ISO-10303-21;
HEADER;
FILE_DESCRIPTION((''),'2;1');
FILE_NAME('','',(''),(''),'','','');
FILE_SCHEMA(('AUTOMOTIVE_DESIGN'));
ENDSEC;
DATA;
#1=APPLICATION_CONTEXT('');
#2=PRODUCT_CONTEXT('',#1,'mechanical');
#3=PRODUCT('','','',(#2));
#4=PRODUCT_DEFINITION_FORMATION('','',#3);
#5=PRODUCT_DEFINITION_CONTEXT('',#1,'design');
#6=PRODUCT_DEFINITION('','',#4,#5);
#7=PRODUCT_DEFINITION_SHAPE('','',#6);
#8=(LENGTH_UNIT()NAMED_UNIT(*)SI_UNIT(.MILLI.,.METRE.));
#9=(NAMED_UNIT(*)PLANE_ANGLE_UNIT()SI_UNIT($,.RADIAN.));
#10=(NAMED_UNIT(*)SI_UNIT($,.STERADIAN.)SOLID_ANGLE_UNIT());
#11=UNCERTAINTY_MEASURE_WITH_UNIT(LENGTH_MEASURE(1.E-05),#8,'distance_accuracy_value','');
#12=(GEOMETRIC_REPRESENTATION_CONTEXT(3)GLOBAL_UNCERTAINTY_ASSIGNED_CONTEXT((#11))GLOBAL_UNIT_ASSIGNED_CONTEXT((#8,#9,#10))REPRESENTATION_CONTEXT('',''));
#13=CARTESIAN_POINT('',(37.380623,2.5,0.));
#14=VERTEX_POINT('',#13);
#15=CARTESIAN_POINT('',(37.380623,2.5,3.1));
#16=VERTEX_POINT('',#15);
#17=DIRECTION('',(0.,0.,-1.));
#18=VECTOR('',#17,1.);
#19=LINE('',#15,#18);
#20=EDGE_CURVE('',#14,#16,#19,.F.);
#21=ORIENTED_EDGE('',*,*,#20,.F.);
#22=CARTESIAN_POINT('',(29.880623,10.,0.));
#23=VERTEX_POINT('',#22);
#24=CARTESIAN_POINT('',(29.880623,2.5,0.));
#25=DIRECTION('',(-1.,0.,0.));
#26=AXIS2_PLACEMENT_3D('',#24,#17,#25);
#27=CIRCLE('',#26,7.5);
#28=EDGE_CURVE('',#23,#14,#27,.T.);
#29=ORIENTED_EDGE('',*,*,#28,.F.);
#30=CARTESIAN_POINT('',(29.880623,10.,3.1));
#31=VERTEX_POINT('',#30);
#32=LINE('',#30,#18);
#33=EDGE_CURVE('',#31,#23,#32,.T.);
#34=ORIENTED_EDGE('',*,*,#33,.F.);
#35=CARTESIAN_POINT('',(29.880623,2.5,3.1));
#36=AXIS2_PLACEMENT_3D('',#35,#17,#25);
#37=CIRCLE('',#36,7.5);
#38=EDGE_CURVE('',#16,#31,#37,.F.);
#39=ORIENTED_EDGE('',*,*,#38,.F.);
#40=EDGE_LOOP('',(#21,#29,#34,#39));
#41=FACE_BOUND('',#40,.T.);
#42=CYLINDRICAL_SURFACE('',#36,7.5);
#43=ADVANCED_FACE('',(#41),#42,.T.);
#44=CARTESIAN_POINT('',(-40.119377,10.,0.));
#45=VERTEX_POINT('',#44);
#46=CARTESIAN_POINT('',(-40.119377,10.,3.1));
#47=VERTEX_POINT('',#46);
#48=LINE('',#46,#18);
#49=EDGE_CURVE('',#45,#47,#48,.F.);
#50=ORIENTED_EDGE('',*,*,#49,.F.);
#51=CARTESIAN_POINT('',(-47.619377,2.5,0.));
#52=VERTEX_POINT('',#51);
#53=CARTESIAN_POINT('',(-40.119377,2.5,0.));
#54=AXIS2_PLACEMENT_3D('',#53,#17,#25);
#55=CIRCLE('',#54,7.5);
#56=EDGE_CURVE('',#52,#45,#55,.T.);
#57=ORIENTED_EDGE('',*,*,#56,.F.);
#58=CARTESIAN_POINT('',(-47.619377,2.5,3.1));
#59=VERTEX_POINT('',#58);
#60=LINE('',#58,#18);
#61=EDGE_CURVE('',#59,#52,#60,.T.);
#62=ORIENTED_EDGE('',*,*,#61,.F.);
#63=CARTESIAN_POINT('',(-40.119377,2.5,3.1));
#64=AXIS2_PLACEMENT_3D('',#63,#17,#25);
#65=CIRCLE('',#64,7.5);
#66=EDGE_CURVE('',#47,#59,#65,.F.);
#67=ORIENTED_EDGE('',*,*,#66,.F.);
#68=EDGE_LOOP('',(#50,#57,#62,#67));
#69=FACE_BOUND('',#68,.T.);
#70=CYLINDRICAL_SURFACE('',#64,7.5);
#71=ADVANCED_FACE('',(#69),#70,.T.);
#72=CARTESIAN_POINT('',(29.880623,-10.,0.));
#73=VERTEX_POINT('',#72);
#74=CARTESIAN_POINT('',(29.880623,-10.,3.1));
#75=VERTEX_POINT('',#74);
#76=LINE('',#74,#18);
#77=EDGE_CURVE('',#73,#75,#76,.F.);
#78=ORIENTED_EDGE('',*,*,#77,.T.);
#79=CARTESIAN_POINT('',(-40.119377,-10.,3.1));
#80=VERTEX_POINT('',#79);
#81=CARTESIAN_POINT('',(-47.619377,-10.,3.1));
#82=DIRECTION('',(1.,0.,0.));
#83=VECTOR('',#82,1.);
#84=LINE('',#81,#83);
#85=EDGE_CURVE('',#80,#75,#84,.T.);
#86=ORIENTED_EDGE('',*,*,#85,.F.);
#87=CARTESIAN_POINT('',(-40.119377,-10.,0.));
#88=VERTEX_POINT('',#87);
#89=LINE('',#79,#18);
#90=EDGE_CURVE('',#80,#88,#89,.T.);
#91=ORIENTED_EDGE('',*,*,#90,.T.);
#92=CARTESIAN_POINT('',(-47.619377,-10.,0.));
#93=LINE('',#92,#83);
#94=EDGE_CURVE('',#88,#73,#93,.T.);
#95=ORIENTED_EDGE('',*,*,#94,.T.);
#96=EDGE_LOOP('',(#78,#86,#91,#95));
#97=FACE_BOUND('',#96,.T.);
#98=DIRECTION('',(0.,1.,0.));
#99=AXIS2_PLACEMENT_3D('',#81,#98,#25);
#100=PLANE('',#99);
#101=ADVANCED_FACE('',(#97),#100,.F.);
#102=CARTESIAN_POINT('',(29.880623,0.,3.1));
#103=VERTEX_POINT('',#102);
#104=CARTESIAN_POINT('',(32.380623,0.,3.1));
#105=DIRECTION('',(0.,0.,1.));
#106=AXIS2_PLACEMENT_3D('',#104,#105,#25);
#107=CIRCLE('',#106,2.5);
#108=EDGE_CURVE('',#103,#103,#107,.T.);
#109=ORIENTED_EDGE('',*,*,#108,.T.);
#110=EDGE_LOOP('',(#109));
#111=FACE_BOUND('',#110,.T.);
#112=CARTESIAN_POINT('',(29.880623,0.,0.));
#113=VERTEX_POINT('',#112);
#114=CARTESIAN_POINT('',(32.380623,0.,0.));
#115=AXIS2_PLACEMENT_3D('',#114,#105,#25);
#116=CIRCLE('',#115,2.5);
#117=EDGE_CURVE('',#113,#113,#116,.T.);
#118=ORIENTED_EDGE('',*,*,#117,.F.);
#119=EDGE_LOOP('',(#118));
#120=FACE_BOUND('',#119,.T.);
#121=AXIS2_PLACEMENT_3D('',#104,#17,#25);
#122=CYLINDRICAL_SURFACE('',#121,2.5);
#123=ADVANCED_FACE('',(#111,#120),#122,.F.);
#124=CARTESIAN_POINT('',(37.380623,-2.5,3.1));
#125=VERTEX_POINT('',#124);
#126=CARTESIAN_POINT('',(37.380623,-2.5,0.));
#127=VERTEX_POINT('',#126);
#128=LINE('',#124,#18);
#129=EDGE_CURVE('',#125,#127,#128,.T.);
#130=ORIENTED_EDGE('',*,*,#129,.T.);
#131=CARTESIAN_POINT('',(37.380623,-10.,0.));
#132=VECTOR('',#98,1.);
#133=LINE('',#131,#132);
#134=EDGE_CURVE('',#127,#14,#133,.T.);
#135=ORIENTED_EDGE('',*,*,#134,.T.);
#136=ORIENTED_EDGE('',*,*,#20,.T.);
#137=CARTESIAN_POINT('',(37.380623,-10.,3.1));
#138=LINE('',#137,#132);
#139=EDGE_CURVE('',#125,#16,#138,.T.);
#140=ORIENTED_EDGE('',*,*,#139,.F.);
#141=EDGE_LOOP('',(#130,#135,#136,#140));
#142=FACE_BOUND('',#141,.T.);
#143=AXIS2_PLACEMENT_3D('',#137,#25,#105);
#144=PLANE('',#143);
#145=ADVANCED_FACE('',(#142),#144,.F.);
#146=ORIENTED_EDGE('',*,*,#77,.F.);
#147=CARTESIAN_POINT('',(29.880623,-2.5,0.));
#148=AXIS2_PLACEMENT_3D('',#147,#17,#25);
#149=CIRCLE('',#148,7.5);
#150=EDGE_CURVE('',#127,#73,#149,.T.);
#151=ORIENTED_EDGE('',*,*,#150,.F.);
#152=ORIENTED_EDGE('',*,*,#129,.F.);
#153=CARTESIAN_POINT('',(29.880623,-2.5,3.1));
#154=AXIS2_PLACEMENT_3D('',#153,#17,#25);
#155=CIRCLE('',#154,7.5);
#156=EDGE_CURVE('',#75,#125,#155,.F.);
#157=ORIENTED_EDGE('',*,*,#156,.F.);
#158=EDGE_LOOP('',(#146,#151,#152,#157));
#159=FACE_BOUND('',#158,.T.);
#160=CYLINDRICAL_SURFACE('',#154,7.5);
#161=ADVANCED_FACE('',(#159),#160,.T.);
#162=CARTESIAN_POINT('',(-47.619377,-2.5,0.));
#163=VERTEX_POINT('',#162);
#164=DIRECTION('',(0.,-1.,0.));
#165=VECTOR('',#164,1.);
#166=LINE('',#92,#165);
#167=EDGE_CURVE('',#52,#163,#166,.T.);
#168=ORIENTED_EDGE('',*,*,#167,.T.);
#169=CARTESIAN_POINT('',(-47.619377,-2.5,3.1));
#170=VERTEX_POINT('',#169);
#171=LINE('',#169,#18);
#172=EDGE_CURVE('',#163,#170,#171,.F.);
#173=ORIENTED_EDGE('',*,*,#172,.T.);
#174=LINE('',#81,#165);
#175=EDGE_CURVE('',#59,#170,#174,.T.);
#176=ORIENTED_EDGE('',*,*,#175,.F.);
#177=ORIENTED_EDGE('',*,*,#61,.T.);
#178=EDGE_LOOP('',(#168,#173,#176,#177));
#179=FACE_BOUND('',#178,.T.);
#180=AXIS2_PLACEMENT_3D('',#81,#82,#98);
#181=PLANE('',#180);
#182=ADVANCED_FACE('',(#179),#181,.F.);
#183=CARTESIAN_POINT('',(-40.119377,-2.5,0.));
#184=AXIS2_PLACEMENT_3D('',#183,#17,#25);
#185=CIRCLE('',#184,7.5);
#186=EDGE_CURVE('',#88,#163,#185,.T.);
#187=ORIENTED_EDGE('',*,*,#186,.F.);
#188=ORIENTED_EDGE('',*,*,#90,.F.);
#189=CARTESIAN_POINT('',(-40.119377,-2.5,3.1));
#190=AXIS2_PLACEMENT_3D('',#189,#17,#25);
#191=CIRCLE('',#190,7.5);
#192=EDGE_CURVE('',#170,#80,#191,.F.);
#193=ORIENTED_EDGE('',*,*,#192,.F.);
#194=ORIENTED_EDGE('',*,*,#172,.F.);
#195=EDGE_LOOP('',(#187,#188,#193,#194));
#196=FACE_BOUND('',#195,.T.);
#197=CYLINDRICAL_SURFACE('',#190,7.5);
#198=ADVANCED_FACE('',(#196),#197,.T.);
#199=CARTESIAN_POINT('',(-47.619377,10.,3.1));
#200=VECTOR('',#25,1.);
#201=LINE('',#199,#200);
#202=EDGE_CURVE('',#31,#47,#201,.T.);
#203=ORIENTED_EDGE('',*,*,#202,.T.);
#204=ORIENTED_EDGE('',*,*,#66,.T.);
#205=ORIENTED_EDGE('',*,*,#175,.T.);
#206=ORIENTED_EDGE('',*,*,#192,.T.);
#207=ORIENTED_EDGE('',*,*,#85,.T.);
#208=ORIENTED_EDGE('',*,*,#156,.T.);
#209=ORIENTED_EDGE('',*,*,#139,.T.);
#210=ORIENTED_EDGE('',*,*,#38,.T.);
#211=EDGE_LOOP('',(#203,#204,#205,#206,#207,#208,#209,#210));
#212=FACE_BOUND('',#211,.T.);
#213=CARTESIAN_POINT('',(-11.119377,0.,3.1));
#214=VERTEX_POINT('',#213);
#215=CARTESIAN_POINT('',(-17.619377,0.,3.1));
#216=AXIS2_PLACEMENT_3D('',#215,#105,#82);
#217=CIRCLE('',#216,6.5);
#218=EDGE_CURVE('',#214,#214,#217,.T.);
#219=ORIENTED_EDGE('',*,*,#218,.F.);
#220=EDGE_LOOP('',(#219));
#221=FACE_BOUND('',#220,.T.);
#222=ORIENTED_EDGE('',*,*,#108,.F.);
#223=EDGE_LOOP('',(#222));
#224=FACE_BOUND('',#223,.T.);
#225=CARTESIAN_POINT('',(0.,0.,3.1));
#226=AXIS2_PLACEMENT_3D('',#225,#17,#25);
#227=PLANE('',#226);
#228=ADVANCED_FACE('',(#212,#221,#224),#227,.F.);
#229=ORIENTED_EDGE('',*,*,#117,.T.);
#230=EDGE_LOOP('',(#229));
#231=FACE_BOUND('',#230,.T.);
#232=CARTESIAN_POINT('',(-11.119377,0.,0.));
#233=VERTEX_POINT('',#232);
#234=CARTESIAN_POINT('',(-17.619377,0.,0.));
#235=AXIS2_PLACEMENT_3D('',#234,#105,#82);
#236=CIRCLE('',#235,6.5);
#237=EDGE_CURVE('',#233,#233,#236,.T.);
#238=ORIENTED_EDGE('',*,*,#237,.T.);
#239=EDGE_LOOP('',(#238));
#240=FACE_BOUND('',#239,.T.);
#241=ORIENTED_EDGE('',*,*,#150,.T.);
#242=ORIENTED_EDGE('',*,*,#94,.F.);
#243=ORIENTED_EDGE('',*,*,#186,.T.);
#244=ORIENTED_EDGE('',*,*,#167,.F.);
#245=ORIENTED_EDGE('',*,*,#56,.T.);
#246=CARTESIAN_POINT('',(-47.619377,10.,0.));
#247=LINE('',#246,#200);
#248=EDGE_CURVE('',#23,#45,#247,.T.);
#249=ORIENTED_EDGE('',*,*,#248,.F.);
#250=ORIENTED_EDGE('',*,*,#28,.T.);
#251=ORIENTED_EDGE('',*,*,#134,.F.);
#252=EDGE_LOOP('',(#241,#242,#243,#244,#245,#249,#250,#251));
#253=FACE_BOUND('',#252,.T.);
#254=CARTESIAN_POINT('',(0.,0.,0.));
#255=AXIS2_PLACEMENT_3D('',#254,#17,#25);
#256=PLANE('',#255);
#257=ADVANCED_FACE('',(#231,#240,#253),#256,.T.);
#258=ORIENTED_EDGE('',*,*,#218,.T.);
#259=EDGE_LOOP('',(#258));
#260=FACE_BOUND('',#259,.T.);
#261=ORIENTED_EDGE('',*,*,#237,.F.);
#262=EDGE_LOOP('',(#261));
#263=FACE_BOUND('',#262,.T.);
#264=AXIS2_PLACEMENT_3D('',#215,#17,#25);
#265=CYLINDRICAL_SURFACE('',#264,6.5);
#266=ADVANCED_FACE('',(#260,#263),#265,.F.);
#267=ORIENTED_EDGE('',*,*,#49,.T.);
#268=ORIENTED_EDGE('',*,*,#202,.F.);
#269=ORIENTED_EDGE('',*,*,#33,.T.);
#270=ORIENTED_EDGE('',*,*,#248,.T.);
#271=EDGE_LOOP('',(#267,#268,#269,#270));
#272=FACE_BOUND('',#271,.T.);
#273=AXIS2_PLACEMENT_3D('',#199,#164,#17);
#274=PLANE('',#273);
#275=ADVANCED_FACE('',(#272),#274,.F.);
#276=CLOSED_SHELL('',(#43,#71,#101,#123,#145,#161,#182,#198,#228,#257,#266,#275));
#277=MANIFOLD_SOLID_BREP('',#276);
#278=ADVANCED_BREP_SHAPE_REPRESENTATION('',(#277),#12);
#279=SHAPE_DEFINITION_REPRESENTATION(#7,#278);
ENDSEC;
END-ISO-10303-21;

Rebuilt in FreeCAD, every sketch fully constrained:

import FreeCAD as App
import Part
import Sketcher

V = App.Vector


def edges_at(feature, points):
    """Names of the edges that pass closest to the given points."""
    edges = feature.Shape.Edges
    near = lambda p: min(range(len(edges)), key=lambda i: edges[i].distToShape(Part.Vertex(*p))[0])
    return sorted({f"Edge{near(p) + 1}" for p in points})

doc = App.newDocument("Part")
body = doc.addObject("PartDesign::Body", "Body")

sketch1 = body.newObject("Sketcher::SketchObject", "Sketch")
sketch1.AttachmentSupport = (doc.getObject("XY_Plane"), [""])
sketch1.MapMode = "FlatFace"
sketch1.addGeometry(Part.LineSegment(V(-47.6, 10, 0), V(-47.6, -10, 0)), False)
sketch1.addGeometry(Part.LineSegment(V(-47.6, -10, 0), V(37.4, -10, 0)), False)
sketch1.addGeometry(Part.LineSegment(V(37.4, -10, 0), V(37.4, 10, 0)), False)
sketch1.addGeometry(Part.LineSegment(V(37.4, 10, 0), V(-47.6, 10, 0)), False)
sketch1.addGeometry(Part.Circle(V(-17.6, 0, 0), V(0, 0, 1), 6.5), False)
sketch1.addGeometry(Part.Circle(V(32.4, 0, 0), V(0, 0, 1), 2.5), False)
sketch1.addConstraint(Sketcher.Constraint("Coincident", 0, 2, 1, 1))
sketch1.addConstraint(Sketcher.Constraint("Coincident", 1, 2, 2, 1))
sketch1.addConstraint(Sketcher.Constraint("Coincident", 2, 2, 3, 1))
sketch1.addConstraint(Sketcher.Constraint("Coincident", 3, 2, 0, 1))
sketch1.addConstraint(Sketcher.Constraint("Vertical", 0))
sketch1.addConstraint(Sketcher.Constraint("Horizontal", 1))
sketch1.addConstraint(Sketcher.Constraint("Vertical", 2))
sketch1.addConstraint(Sketcher.Constraint("Horizontal", 3))
sketch1.addConstraint(Sketcher.Constraint("PointOnObject", 4, 3, -1))
sketch1.addConstraint(Sketcher.Constraint("PointOnObject", 5, 3, -1))
sketch1.addConstraint(Sketcher.Constraint("Diameter", 4, 13.0))
sketch1.addConstraint(Sketcher.Constraint("Diameter", 5, 5.0))
sketch1.addConstraint(Sketcher.Constraint("DistanceX", 1, 1, 1, 2, 85.0))
sketch1.addConstraint(Sketcher.Constraint("DistanceY", 0, 2, 0, 1, 20.0))
sketch1.addConstraint(Sketcher.Constraint("DistanceY", 0, 2, -1, 1, 10.0))
sketch1.addConstraint(Sketcher.Constraint("DistanceX", 4, 3, 5, 3, 50.0))
sketch1.addConstraint(Sketcher.Constraint("DistanceX", 0, 2, 4, 3, 30.0))
sketch1.addConstraint(Sketcher.Constraint("DistanceX", 4, 3, -1, 1, 17.619377))
pad1 = body.newObject("PartDesign::Pad", "Pad")
pad1.Profile = sketch1
pad1.Length = 3.1
doc.recompute()

fillet = body.newObject("PartDesign::Fillet", "Fillet")
fillet.Base = (pad1, edges_at(pad1, [
    (-47.619, 10, 1.55),
    (37.381, 10, 1.55),
    (37.381, -10, 1.55),
    (-47.619, -10, 1.55),
]))
fillet.Radius = 7.5

doc.recompute()
